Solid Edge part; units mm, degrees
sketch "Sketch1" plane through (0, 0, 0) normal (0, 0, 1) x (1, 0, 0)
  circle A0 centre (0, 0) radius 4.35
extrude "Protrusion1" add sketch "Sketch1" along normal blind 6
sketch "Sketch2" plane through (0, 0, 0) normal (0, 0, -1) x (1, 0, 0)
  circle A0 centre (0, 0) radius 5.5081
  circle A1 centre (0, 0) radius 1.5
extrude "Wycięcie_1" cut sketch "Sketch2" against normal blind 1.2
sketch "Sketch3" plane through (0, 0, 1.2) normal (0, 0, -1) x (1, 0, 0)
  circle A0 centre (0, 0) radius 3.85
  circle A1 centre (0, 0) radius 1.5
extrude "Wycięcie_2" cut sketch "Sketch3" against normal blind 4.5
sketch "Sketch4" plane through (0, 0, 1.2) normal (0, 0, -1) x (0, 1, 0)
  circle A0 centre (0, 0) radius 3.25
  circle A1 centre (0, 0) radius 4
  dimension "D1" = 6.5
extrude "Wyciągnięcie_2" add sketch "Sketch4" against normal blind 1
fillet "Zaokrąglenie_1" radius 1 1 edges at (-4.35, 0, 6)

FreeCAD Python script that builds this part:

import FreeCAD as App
import Part
import Sketcher


def edges_at(feature, points):
    """Names of the edges that pass closest to the given points."""
    edges = feature.Shape.Edges
    near = lambda p: min(range(len(edges)), key=lambda i: edges[i].distToShape(Part.Vertex(*p))[0])
    return sorted({f"Edge{near(p) + 1}" for p in points})

doc = App.newDocument("Part")
body = doc.addObject("PartDesign::Body", "Body")

sketch1 = body.newObject("Sketcher::SketchObject", "Sketch")
sketch1.AttachmentSupport = (doc.getObject("XY_Plane"), [""])
sketch1.MapMode = "FlatFace"
sketch1.addGeometry(Part.Circle(App.Vector(0, 0, 0), App.Vector(0, 0, 1), 4.35), False)
sketch1.addConstraint([
    Sketcher.Constraint("Coincident", 0, 3, -1, 1),
    Sketcher.Constraint("Diameter", 0, 8.7),
])
pad1 = body.newObject("PartDesign::Pad", "Pad")
pad1.Profile = sketch1
pad1.Length = 6

sketch2 = body.newObject("Sketcher::SketchObject", "Sketch001")
sketch2.AttachmentSupport = (doc.getObject("XY_Plane"), [""])
sketch2.MapMode = "FlatFace"
sketch2.addGeometry([
    Part.Circle(App.Vector(0, 0, 0), App.Vector(0, 0, 1), 5.5081),
    Part.Circle(App.Vector(0, 0, 0), App.Vector(0, 0, 1), 1.5),
], False)
sketch2.addConstraint([
    Sketcher.Constraint("Coincident", 0, 3, -1, 1),
    Sketcher.Constraint("Coincident", 1, 3, -1, 1),
    Sketcher.Constraint("Diameter", 1, 3.0),
    Sketcher.Constraint("Diameter", 0, 11.0162),
])
pocket1 = body.newObject("PartDesign::Pocket", "Pocket")
pocket1.Profile = sketch2
pocket1.Length = 1.2
pocket1.Reversed = True

sketch3 = body.newObject("Sketcher::SketchObject", "Sketch002")
sketch3.AttachmentSupport = (doc.getObject("XY_Plane"), [""])
sketch3.MapMode = "FlatFace"
sketch3.AttachmentOffset = App.Placement(App.Vector(0, 0, 1.2), App.Rotation())
sketch3.addGeometry([
    Part.Circle(App.Vector(0, 0, 0), App.Vector(0, 0, 1), 3.85),
    Part.Circle(App.Vector(0, 0, 0), App.Vector(0, 0, 1), 1.5),
], False)
sketch3.addConstraint([
    Sketcher.Constraint("Coincident", 0, 3, -1, 1),
    Sketcher.Constraint("Coincident", 1, 3, -1, 1),
    Sketcher.Constraint("Diameter", 1, 3.0),
    Sketcher.Constraint("Diameter", 0, 7.7),
])
pocket2 = body.newObject("PartDesign::Pocket", "Pocket001")
pocket2.Profile = sketch3
pocket2.Length = 4.5
pocket2.Reversed = True

sketch4 = body.newObject("Sketcher::SketchObject", "Sketch003")
sketch4.AttachmentSupport = (doc.getObject("XY_Plane"), [""])
sketch4.MapMode = "FlatFace"
sketch4.AttachmentOffset = App.Placement(App.Vector(0, 0, 1.2), App.Rotation())
sketch4.addGeometry([
    Part.Circle(App.Vector(0, 0, 0), App.Vector(0, 0, 1), 4),
    Part.Circle(App.Vector(0, 0, 0), App.Vector(0, 0, 1), 3.25),
], False)
sketch4.addConstraint([
    Sketcher.Constraint("Coincident", 0, 3, -1, 1),
    Sketcher.Constraint("Coincident", 1, 3, -1, 1),
    Sketcher.Constraint("Diameter", 0, 8.0),
    Sketcher.Constraint("Diameter", 1, 6.5),
])
pad2 = body.newObject("PartDesign::Pad", "Pad001")
pad2.Profile = sketch4
pad2.Length = 1
doc.recompute()

fillet = body.newObject("PartDesign::Fillet", "Fillet")
fillet.Base = (pad2, edges_at(pad2, [(-4.35, 0, 6)]))
fillet.Radius = 1

doc.recompute()
